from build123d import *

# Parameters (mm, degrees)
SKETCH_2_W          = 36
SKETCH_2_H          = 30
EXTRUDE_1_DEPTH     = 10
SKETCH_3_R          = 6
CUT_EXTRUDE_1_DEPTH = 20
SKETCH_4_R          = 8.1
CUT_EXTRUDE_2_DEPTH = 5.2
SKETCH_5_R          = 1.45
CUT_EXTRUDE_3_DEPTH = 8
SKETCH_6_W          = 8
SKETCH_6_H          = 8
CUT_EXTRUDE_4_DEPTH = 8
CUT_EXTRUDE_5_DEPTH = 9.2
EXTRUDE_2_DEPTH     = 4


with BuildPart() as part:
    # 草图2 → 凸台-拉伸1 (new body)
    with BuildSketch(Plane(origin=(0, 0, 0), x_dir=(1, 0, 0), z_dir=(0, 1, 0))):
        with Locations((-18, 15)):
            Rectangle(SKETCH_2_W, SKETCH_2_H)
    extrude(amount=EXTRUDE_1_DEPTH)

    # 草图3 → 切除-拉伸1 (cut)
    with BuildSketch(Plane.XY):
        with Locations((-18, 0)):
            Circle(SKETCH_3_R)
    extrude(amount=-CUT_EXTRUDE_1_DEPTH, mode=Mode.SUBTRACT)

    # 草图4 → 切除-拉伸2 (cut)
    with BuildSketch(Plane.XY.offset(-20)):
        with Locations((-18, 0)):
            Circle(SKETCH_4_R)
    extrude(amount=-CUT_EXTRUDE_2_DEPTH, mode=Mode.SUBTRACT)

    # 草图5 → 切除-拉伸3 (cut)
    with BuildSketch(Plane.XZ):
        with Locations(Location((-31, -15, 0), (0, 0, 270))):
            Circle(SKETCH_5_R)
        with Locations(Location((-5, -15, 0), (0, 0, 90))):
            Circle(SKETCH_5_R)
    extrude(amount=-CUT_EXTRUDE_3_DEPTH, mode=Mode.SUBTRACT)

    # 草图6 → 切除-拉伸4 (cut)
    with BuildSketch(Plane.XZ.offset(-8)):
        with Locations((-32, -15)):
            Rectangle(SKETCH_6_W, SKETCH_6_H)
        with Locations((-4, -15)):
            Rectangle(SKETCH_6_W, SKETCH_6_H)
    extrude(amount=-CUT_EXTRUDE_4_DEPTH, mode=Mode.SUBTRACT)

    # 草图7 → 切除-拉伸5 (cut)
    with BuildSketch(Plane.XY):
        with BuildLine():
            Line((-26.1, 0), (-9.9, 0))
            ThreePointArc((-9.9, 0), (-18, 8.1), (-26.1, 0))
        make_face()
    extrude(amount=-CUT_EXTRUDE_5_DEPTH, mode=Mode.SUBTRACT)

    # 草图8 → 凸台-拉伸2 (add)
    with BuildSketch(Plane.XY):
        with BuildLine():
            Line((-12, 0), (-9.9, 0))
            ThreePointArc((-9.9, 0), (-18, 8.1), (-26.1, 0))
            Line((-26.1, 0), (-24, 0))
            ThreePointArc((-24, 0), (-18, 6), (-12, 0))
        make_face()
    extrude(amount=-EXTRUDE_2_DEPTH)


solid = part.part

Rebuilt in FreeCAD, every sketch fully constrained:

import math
import FreeCAD as App
import Part
import Sketcher

V = App.Vector
Q = App.Units.Quantity


def add_polygon(sketch, points):
    """Adds a closed chain of lines whose ends are joined by coincident constraints."""
    first, n = sketch.GeometryCount, len(points)
    for a, b in zip(points, points[1:] + points[:1]):
        sketch.addGeometry(Part.LineSegment(App.Vector(*a, 0), App.Vector(*b, 0)), False)
    for i in range(n):
        sketch.addConstraint(Sketcher.Constraint("Coincident", first + i, 2, first + (i + 1) % n, 1))

doc = App.newDocument("Part")
body = doc.addObject("PartDesign::Body", "Body")

# Sketch on XZ plane
sketch1 = body.newObject("Sketcher::SketchObject", "Sketch")
sketch1.AttachmentSupport = (doc.getObject("XZ_Plane"), [""])
sketch1.MapMode = "FlatFace"
add_polygon(sketch1, [(-36, -30), (-36, 0), (0, 0), (0, -30)])  # lines 0-3
sketch1.addConstraint(Sketcher.Constraint("Vertical", 0))
sketch1.addConstraint(Sketcher.Constraint("Horizontal", 1))
sketch1.addConstraint(Sketcher.Constraint("Vertical", 2))
sketch1.addConstraint(Sketcher.Constraint("Horizontal", 3))
sketch1.addConstraint(Sketcher.Constraint("Coincident", 1, 2, -1, 1))
sketch1.addConstraint(Sketcher.Constraint("DistanceX", 1, 1, 1, 2, Q("36 mm")))
sketch1.addConstraint(Sketcher.Constraint("DistanceY", 0, 1, 0, 2, Q("30 mm")))
pad1 = body.newObject("PartDesign::Pad", "Pad")
pad1.Profile = sketch1
pad1.Length = 10
pad1.Reversed = True

# Sketch on XY plane
sketch2 = body.newObject("Sketcher::SketchObject", "Sketch001")
sketch2.AttachmentSupport = (doc.getObject("XY_Plane"), [""])
sketch2.MapMode = "FlatFace"
sketch2.addGeometry(Part.Circle(V(-18, 0, 0), V(0, 0, 1), 6), False)
sketch2.addConstraint(Sketcher.Constraint("PointOnObject", 0, 3, -1))
sketch2.addConstraint(Sketcher.Constraint("Diameter", 0, Q("12 mm")))
sketch2.addConstraint(Sketcher.Constraint("DistanceX", 0, 3, -1, 1, Q("18 mm")))
pocket1 = body.newObject("PartDesign::Pocket", "Pocket")
pocket1.Profile = sketch2
pocket1.Length = 20

# Sketch on XY plane
sketch3 = body.newObject("Sketcher::SketchObject", "Sketch002")
sketch3.AttachmentSupport = (doc.getObject("XY_Plane"), [""])
sketch3.MapMode = "FlatFace"
sketch3.AttachmentOffset = App.Placement(V(0, 0, -20), App.Rotation())
sketch3.addGeometry(Part.Circle(V(-18, 0, 0), V(0, 0, 1), 8), False)
sketch3.addConstraint(Sketcher.Constraint("PointOnObject", 0, 3, -1))
sketch3.addConstraint(Sketcher.Constraint("Diameter", 0, Q("16.2 mm")))
sketch3.addConstraint(Sketcher.Constraint("DistanceX", 0, 3, -1, 1, Q("18 mm")))
pocket2 = body.newObject("PartDesign::Pocket", "Pocket001")
pocket2.Profile = sketch3
pocket2.Length = 5.2

# Sketch on XZ plane
sketch4 = body.newObject("Sketcher::SketchObject", "Sketch003")
sketch4.AttachmentSupport = (doc.getObject("XZ_Plane"), [""])
sketch4.MapMode = "FlatFace"
sketch4.addGeometry(Part.Circle(V(-31, -15, 0), V(0, 0, 1), 1.4), False)
sketch4.addGeometry(Part.Circle(V(-5, -15, 0), V(0, 0, 1), 1.4), False)
sketch4.addConstraint(Sketcher.Constraint("Equal", 0, 1))
sketch4.addConstraint(Sketcher.Constraint("Horizontal", 0, 3, 1, 3))
sketch4.addConstraint(Sketcher.Constraint("Diameter", 0, Q("2.9 mm")))
sketch4.addConstraint(Sketcher.Constraint("DistanceX", 0, 3, -1, 1, Q("31 mm")))
sketch4.addConstraint(Sketcher.Constraint("DistanceY", 0, 3, -1, 1, Q("15 mm")))
sketch4.addConstraint(Sketcher.Constraint("DistanceX", 1, 3, -1, 1, Q("5 mm")))
pocket3 = body.newObject("PartDesign::Pocket", "Pocket002")
pocket3.Profile = sketch4
pocket3.Length = 8

# Sketch on XZ plane
sketch5 = body.newObject("Sketcher::SketchObject", "Sketch004")
sketch5.AttachmentSupport = (doc.getObject("XZ_Plane"), [""])
sketch5.MapMode = "FlatFace"
sketch5.AttachmentOffset = App.Placement(V(0, 0, -8), App.Rotation())
add_polygon(sketch5, [(-36, -11), (-36, -19), (-28, -19), (-28, -11)])  # lines 0-3
add_polygon(sketch5, [(-8, -11), (-8, -19), (0, -19), (0, -11)])  # lines 4-7
sketch5.addConstraint(Sketcher.Constraint("Vertical", 0))
sketch5.addConstraint(Sketcher.Constraint("Horizontal", 1))
sketch5.addConstraint(Sketcher.Constraint("Vertical", 2))
sketch5.addConstraint(Sketcher.Constraint("Horizontal", 3))
sketch5.addConstraint(Sketcher.Constraint("Vertical", 4))
sketch5.addConstraint(Sketcher.Constraint("Horizontal", 5))
sketch5.addConstraint(Sketcher.Constraint("Vertical", 6))
sketch5.addConstraint(Sketcher.Constraint("Horizontal", 7))
sketch5.addConstraint(Sketcher.Constraint("PointOnObject", 5, 2, -2))
sketch5.addConstraint(Sketcher.Constraint("Horizontal", 1, 2, 4, 2))
sketch5.addConstraint(Sketcher.Constraint("Horizontal", 3, 2, 6, 2))
sketch5.addConstraint(Sketcher.Constraint("Equal", 3, 5))
sketch5.addConstraint(Sketcher.Constraint("Equal", 7, 0))
sketch5.addConstraint(Sketcher.Constraint("DistanceX", 1, 1, 1, 2, Q("8 mm")))
sketch5.addConstraint(Sketcher.Constraint("DistanceX", 0, 2, -1, 1, Q("36 mm")))
sketch5.addConstraint(Sketcher.Constraint("DistanceY", 0, 2, -1, 1, Q("19 mm")))
pocket4 = body.newObject("PartDesign::Pocket", "Pocket003")
pocket4.Profile = sketch5
pocket4.Length = 8

# Sketch on XY plane
sketch6 = body.newObject("Sketcher::SketchObject", "Sketch005")
sketch6.AttachmentSupport = (doc.getObject("XY_Plane"), [""])
sketch6.MapMode = "FlatFace"
sketch6.addGeometry(Part.LineSegment(V(-26, 0, 0), V(-10, 0, 0)), False)
sketch6.addGeometry(Part.ArcOfCircle(Part.Circle(V(-18, 0, 0), V(0, 0, 1), 8), math.radians(0), math.radians(180)), False)
sketch6.addConstraint(Sketcher.Constraint("Coincident", 0, 1, 1, 2))
sketch6.addConstraint(Sketcher.Constraint("Coincident", 1, 1, 0, 2))
sketch6.addConstraint(Sketcher.Constraint("Horizontal", 0))
sketch6.addConstraint(Sketcher.Constraint("PointOnObject", 1, 3, -1))
sketch6.addConstraint(Sketcher.Constraint("PointOnObject", 0, 1, -1))
sketch6.addConstraint(Sketcher.Constraint("Radius", 1, Q("8.1 mm")))
sketch6.addConstraint(Sketcher.Constraint("DistanceX", 1, 3, -1, 1, Q("18 mm")))
pocket5 = body.newObject("PartDesign::Pocket", "Pocket004")
pocket5.Profile = sketch6
pocket5.Length = 9.2

# Sketch on XY plane
sketch7 = body.newObject("Sketcher::SketchObject", "Sketch006")
sketch7.AttachmentSupport = (doc.getObject("XY_Plane"), [""])
sketch7.MapMode = "FlatFace"
sketch7.addGeometry(Part.LineSegment(V(-12, 0, 0), V(-9.9, 0, 0)), False)
sketch7.addGeometry(Part.ArcOfCircle(Part.Circle(V(-18, 0, 0), V(0, 0, 1), 8.1), math.radians(0), math.radians(180)), False)
sketch7.addGeometry(Part.LineSegment(V(-26.1, 0, 0), V(-24, 0, 0)), False)
sketch7.addGeometry(Part.ArcOfCircle(Part.Circle(V(-18, 0, 0), V(0, 0, 1), 6), math.radians(0), math.radians(180)), False)
sketch7.addConstraint(Sketcher.Constraint("Coincident", 0, 2, 1, 1))
sketch7.addConstraint(Sketcher.Constraint("Coincident", 1, 2, 2, 1))
sketch7.addConstraint(Sketcher.Constraint("Coincident", 2, 2, 3, 2))
sketch7.addConstraint(Sketcher.Constraint("Coincident", 3, 1, 0, 1))
sketch7.addConstraint(Sketcher.Constraint("Horizontal", 0))
sketch7.addConstraint(Sketcher.Constraint("Horizontal", 2))
sketch7.addConstraint(Sketcher.Constraint("Coincident", 3, 3, 1, 3))
sketch7.addConstraint(Sketcher.Constraint("PointOnObject", 1, 3, -1))
sketch7.addConstraint(Sketcher.Constraint("PointOnObject", 0, 2, -1))
sketch7.addConstraint(Sketcher.Constraint("PointOnObject", 1, 2, -1))
sketch7.addConstraint(Sketcher.Constraint("Radius", 3, Q("6 mm")))
sketch7.addConstraint(Sketcher.Constraint("Radius", 1, Q("8.1 mm")))
sketch7.addConstraint(Sketcher.Constraint("DistanceX", 1, 3, -1, 1, Q("18 mm")))
pad2 = body.newObject("PartDesign::Pad", "Pad001")
pad2.Profile = sketch7
pad2.Length = 4
pad2.Reversed = True

doc.recompute()
